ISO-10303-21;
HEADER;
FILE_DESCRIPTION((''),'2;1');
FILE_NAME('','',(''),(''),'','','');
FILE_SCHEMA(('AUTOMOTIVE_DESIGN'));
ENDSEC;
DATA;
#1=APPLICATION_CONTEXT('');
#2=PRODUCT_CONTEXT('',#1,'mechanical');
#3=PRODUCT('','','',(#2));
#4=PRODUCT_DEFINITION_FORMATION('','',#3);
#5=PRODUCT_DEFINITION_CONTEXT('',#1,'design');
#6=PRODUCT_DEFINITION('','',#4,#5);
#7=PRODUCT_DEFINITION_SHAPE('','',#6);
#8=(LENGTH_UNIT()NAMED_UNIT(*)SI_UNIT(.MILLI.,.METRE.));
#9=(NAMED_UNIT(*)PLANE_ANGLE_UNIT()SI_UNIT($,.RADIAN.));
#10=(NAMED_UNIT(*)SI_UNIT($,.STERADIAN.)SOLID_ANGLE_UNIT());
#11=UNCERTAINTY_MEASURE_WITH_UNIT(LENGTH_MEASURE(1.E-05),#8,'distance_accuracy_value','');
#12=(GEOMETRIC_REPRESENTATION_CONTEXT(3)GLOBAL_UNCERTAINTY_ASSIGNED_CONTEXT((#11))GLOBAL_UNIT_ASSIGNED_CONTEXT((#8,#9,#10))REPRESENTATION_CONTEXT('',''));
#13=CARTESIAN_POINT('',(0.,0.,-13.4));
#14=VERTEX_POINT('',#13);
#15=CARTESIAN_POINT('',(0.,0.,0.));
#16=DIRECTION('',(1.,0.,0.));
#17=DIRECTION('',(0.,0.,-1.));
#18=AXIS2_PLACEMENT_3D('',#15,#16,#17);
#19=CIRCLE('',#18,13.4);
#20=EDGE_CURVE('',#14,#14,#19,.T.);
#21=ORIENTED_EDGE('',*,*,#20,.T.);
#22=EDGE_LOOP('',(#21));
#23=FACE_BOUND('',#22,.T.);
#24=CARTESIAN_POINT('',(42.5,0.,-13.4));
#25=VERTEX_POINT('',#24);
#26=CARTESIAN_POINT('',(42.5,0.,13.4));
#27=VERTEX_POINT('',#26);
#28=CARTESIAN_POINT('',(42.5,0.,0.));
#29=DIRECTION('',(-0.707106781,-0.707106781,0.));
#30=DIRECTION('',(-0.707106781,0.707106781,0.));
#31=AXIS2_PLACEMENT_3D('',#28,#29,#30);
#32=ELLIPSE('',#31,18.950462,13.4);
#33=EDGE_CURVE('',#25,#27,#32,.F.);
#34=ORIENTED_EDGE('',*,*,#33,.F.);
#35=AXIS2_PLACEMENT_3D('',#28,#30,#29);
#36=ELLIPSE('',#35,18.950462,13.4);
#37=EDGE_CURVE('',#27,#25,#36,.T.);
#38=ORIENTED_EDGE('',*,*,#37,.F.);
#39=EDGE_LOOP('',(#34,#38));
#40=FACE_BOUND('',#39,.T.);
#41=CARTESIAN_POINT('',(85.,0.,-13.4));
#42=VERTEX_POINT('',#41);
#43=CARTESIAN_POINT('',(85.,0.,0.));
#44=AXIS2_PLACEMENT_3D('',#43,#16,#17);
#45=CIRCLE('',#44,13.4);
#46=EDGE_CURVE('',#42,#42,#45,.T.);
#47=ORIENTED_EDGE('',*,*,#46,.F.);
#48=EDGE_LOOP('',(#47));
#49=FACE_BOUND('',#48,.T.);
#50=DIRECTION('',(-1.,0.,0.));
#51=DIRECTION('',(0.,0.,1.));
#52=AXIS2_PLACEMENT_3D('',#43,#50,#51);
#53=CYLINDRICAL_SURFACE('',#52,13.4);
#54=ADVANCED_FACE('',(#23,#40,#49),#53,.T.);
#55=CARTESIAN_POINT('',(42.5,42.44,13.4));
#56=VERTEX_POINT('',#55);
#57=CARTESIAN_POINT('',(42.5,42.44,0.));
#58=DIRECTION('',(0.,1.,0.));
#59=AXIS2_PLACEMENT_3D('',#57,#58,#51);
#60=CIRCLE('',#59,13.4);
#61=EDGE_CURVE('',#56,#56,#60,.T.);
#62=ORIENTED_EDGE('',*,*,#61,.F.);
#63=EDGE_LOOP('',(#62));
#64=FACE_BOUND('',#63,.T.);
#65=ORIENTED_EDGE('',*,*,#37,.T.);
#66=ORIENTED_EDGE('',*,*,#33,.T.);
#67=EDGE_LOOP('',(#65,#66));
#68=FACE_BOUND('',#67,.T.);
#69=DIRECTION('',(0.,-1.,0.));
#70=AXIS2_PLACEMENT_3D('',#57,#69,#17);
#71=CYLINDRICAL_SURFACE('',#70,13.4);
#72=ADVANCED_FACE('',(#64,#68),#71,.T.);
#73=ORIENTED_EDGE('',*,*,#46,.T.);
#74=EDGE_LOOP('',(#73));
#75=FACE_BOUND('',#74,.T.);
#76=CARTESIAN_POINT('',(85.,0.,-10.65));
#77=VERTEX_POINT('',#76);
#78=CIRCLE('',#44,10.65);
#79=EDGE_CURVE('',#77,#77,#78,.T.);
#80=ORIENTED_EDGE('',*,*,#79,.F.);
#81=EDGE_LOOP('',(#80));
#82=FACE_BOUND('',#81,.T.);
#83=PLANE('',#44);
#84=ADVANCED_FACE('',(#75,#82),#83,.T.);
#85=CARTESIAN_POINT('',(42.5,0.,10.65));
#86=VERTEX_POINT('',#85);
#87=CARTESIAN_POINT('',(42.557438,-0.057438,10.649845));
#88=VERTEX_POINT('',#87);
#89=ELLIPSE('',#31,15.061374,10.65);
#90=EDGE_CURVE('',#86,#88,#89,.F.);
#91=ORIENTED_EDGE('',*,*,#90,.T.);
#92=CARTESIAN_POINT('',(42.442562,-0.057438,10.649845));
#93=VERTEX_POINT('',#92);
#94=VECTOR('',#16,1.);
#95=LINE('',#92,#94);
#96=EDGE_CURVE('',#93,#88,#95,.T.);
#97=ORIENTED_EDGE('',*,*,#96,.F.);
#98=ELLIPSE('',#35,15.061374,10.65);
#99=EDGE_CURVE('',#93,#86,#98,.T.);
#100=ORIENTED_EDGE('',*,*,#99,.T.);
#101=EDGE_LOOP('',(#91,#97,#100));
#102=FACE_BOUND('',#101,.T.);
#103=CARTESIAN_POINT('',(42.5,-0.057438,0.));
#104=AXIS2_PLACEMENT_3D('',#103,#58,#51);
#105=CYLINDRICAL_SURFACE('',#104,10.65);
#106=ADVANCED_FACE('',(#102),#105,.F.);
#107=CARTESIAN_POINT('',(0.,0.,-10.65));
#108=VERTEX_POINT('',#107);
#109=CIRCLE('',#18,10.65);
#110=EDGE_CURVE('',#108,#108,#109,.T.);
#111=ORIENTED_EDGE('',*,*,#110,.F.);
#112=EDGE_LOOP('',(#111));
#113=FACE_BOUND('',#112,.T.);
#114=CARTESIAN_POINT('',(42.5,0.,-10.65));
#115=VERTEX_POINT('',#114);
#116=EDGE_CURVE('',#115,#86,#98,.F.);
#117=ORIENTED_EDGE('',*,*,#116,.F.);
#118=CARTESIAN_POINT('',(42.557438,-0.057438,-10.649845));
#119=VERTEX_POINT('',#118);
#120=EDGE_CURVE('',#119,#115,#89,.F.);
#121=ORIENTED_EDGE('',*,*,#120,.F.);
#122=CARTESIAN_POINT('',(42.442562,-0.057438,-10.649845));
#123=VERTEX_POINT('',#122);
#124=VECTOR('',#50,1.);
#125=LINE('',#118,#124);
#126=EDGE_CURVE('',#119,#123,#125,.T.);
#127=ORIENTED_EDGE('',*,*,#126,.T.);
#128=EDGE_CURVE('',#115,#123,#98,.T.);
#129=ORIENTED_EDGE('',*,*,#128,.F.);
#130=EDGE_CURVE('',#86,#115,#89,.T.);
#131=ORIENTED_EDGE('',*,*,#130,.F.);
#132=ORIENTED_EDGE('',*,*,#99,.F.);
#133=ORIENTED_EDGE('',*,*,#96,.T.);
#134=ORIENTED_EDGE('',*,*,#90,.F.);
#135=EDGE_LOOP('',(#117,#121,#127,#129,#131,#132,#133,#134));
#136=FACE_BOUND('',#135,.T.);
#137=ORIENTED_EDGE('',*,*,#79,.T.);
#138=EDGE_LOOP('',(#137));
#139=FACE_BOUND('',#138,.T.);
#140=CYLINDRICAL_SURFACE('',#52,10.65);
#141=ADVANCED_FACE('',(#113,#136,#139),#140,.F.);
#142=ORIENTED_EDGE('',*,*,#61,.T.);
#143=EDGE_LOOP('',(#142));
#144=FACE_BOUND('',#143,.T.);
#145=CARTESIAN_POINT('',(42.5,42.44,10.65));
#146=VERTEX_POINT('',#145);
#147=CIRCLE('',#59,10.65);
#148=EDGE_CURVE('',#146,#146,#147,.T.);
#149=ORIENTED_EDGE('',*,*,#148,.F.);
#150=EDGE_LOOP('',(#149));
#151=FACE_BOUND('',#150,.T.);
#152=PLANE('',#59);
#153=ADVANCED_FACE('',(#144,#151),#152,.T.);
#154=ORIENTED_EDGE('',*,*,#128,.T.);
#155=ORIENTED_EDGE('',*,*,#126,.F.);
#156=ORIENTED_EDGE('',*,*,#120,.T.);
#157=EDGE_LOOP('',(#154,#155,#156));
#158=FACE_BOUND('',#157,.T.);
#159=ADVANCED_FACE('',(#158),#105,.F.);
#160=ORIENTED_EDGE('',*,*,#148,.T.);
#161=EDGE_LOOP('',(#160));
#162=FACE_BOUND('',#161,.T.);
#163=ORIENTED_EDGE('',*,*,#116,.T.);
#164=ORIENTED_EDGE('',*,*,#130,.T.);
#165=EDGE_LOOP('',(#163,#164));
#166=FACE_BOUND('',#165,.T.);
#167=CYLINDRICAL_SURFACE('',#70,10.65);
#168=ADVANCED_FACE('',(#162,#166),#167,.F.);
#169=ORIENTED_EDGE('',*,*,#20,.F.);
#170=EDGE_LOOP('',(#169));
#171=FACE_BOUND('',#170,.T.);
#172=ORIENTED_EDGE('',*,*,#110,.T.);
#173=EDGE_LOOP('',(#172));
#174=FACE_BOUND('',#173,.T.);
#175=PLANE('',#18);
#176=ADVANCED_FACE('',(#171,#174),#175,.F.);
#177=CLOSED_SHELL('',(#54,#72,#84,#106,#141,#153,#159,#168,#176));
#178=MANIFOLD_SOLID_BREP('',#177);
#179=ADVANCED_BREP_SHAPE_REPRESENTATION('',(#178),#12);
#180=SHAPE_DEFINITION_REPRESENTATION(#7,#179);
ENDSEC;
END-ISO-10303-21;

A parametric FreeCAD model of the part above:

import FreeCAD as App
import Part
import Sketcher

V = App.Vector
Q = App.Units.Quantity

doc = App.newDocument("Part")
body = doc.addObject("PartDesign::Body", "Body")

# Sketch on YZ plane
sketch1 = body.newObject("Sketcher::SketchObject", "Sketch")
sketch1.AttachmentSupport = (doc.getObject("YZ_Plane"), [""])
sketch1.MapMode = "FlatFace"
sketch1.addGeometry([
    Part.Circle(V(0, 0, 0), V(0, 0, 1), 13),
    Part.Circle(V(0, 0, 0), V(0, 0, 1), 11),
], False)
sketch1.addConstraint([
    Sketcher.Constraint("Coincident", 0, 3, -1, 1),
    Sketcher.Constraint("Coincident", 1, 3, -1, 1),
    Sketcher.Constraint("Diameter", 0, Q("26.8 mm")),
    Sketcher.Constraint("Diameter", 1, Q("21.3 mm")),
])
pad1 = body.newObject("PartDesign::Pad", "Pad")
pad1.Profile = sketch1
pad1.Length = 85

# Sketch on XZ plane
sketch2 = body.newObject("Sketcher::SketchObject", "Sketch001")
sketch2.AttachmentSupport = (doc.getObject("XZ_Plane"), [""])
sketch2.MapMode = "FlatFace"
sketch2.addGeometry([
    Part.Circle(V(42, 0, 0), V(0, 0, 1), 13),
    Part.Circle(V(42, 0, 0), V(0, 0, 1), 11),
], False)
sketch2.addConstraint([
    Sketcher.Constraint("Coincident", 1, 3, 0, 3),
    Sketcher.Constraint("PointOnObject", 0, 3, -1),
    Sketcher.Constraint("Diameter", 0, Q("26.8 mm")),
    Sketcher.Constraint("Diameter", 1, Q("21.3 mm")),
    Sketcher.Constraint("DistanceX", -1, 1, 0, 3, Q("42.5 mm")),
])
pad2 = body.newObject("PartDesign::Pad", "Pad001")
pad2.Profile = sketch2
pad2.Length = 42.44
pad2.Reversed = True

# Sketch on YZ plane
sketch3 = body.newObject("Sketcher::SketchObject", "Sketch002")
sketch3.AttachmentSupport = (doc.getObject("YZ_Plane"), [""])
sketch3.MapMode = "FlatFace"
sketch3.addGeometry(Part.Circle(V(0, 0, 0), V(0, 0, 1), 11), False)
sketch3.addConstraint([
    Sketcher.Constraint("Coincident", 0, 3, -1, 1),
    Sketcher.Constraint("Diameter", 0, Q("21.3 mm")),
])
pocket1 = body.newObject("PartDesign::Pocket", "Pocket")
pocket1.Profile = sketch3
pocket1.Length = 84.497438
pocket1.Reversed = True

# Sketch on XZ plane
sketch4 = body.newObject("Sketcher::SketchObject", "Sketch003")
sketch4.AttachmentSupport = (doc.getObject("XZ_Plane"), [""])
sketch4.MapMode = "FlatFace"
sketch4.AttachmentOffset = App.Placement(V(0, 0, 0.057438), App.Rotation())
sketch4.addGeometry(Part.Circle(V(42, 0, 0), V(0, 0, 1), 11), False)
sketch4.addConstraint([
    Sketcher.Constraint("PointOnObject", 0, 3, -1),
    Sketcher.Constraint("Diameter", 0, Q("21.3 mm")),
    Sketcher.Constraint("DistanceX", -1, 1, 0, 3, Q("42.5 mm")),
])
pocket2 = body.newObject("PartDesign::Pocket", "Pocket001")
pocket2.Profile = sketch4
pocket2.Length = 42.497438

doc.recompute()
